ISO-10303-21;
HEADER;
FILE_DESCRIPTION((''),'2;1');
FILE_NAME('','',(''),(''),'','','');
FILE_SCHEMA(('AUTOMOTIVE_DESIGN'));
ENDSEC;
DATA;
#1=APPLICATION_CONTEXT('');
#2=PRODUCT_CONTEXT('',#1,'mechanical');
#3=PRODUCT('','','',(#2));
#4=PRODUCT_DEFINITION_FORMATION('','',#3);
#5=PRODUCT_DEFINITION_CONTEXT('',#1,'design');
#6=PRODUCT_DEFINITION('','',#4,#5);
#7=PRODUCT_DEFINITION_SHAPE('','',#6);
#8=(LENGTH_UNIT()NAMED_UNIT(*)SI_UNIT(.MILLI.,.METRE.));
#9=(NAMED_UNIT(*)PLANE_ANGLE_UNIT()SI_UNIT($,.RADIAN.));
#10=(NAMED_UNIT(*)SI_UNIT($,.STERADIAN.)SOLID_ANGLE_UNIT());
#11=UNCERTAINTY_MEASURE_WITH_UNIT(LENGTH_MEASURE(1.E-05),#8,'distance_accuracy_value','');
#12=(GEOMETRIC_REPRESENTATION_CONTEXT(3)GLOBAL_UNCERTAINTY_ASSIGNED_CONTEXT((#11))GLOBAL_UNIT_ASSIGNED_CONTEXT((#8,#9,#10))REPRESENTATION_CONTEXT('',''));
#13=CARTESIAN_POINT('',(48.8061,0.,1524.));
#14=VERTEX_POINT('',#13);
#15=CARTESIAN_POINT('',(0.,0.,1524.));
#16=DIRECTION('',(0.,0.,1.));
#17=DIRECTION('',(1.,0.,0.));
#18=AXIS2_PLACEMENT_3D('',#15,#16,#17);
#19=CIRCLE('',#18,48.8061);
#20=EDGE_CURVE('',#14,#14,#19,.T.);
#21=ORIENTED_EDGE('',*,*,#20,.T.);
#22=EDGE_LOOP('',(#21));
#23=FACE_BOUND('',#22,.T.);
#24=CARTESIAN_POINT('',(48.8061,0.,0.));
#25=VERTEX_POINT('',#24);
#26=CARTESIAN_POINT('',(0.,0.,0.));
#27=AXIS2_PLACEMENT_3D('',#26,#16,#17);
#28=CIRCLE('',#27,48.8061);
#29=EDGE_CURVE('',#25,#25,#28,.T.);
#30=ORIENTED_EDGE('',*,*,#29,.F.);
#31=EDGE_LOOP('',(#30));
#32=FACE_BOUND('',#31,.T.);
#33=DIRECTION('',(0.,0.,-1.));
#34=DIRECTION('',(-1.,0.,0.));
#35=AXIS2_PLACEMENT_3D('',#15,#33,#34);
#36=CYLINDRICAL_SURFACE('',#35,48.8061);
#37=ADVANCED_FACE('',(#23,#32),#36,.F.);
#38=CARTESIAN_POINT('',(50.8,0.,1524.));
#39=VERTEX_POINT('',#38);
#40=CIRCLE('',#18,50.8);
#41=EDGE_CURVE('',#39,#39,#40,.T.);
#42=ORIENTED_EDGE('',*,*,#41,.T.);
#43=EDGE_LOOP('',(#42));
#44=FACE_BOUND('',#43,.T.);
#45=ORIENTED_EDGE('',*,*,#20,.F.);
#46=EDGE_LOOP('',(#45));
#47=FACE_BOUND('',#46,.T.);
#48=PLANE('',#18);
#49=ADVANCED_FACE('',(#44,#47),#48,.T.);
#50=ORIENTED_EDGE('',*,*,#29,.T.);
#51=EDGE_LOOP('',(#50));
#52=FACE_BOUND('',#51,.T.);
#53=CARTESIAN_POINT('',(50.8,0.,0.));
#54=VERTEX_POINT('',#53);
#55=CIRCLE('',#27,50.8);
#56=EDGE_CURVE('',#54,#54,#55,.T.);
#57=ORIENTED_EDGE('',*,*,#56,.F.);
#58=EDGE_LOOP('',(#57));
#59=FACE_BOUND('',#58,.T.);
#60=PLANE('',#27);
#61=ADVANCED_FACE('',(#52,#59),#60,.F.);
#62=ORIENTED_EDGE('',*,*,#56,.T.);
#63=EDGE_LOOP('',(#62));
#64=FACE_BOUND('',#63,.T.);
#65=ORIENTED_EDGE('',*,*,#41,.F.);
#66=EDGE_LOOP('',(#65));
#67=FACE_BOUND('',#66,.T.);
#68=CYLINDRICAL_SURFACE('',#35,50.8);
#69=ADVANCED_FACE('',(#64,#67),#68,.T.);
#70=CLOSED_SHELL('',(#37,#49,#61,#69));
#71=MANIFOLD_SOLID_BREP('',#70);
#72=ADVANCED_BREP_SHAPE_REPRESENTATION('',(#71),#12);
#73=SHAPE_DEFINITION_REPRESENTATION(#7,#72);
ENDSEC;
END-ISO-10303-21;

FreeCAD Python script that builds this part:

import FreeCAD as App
import Part
import Sketcher

V = App.Vector
Q = App.Units.Quantity

doc = App.newDocument("Part")
body = doc.addObject("PartDesign::Body", "Body")

# Sketch on XY plane
sketch1 = body.newObject("Sketcher::SketchObject", "Sketch")
sketch1.AttachmentSupport = (doc.getObject("XY_Plane"), [""])
sketch1.MapMode = "FlatFace"
sketch1.addGeometry([
    Part.Circle(V(0, 0, 0), V(0, 0, 1), 50.8),
    Part.Circle(V(0, 0, 0), V(0, 0, 1), 48.8061),
], False)
sketch1.addConstraint([
    Sketcher.Constraint("Coincident", 0, 3, -1, 1),
    Sketcher.Constraint("Coincident", 1, 3, -1, 1),
    Sketcher.Constraint("Diameter", 0, Q("4 in")),
    Sketcher.Constraint("Diameter", 1, Q("3.843 in")),
])
pad1 = body.newObject("PartDesign::Pad", "Pad")
pad1.Profile = sketch1
pad1.Length = Q("60 in")

doc.recompute()
